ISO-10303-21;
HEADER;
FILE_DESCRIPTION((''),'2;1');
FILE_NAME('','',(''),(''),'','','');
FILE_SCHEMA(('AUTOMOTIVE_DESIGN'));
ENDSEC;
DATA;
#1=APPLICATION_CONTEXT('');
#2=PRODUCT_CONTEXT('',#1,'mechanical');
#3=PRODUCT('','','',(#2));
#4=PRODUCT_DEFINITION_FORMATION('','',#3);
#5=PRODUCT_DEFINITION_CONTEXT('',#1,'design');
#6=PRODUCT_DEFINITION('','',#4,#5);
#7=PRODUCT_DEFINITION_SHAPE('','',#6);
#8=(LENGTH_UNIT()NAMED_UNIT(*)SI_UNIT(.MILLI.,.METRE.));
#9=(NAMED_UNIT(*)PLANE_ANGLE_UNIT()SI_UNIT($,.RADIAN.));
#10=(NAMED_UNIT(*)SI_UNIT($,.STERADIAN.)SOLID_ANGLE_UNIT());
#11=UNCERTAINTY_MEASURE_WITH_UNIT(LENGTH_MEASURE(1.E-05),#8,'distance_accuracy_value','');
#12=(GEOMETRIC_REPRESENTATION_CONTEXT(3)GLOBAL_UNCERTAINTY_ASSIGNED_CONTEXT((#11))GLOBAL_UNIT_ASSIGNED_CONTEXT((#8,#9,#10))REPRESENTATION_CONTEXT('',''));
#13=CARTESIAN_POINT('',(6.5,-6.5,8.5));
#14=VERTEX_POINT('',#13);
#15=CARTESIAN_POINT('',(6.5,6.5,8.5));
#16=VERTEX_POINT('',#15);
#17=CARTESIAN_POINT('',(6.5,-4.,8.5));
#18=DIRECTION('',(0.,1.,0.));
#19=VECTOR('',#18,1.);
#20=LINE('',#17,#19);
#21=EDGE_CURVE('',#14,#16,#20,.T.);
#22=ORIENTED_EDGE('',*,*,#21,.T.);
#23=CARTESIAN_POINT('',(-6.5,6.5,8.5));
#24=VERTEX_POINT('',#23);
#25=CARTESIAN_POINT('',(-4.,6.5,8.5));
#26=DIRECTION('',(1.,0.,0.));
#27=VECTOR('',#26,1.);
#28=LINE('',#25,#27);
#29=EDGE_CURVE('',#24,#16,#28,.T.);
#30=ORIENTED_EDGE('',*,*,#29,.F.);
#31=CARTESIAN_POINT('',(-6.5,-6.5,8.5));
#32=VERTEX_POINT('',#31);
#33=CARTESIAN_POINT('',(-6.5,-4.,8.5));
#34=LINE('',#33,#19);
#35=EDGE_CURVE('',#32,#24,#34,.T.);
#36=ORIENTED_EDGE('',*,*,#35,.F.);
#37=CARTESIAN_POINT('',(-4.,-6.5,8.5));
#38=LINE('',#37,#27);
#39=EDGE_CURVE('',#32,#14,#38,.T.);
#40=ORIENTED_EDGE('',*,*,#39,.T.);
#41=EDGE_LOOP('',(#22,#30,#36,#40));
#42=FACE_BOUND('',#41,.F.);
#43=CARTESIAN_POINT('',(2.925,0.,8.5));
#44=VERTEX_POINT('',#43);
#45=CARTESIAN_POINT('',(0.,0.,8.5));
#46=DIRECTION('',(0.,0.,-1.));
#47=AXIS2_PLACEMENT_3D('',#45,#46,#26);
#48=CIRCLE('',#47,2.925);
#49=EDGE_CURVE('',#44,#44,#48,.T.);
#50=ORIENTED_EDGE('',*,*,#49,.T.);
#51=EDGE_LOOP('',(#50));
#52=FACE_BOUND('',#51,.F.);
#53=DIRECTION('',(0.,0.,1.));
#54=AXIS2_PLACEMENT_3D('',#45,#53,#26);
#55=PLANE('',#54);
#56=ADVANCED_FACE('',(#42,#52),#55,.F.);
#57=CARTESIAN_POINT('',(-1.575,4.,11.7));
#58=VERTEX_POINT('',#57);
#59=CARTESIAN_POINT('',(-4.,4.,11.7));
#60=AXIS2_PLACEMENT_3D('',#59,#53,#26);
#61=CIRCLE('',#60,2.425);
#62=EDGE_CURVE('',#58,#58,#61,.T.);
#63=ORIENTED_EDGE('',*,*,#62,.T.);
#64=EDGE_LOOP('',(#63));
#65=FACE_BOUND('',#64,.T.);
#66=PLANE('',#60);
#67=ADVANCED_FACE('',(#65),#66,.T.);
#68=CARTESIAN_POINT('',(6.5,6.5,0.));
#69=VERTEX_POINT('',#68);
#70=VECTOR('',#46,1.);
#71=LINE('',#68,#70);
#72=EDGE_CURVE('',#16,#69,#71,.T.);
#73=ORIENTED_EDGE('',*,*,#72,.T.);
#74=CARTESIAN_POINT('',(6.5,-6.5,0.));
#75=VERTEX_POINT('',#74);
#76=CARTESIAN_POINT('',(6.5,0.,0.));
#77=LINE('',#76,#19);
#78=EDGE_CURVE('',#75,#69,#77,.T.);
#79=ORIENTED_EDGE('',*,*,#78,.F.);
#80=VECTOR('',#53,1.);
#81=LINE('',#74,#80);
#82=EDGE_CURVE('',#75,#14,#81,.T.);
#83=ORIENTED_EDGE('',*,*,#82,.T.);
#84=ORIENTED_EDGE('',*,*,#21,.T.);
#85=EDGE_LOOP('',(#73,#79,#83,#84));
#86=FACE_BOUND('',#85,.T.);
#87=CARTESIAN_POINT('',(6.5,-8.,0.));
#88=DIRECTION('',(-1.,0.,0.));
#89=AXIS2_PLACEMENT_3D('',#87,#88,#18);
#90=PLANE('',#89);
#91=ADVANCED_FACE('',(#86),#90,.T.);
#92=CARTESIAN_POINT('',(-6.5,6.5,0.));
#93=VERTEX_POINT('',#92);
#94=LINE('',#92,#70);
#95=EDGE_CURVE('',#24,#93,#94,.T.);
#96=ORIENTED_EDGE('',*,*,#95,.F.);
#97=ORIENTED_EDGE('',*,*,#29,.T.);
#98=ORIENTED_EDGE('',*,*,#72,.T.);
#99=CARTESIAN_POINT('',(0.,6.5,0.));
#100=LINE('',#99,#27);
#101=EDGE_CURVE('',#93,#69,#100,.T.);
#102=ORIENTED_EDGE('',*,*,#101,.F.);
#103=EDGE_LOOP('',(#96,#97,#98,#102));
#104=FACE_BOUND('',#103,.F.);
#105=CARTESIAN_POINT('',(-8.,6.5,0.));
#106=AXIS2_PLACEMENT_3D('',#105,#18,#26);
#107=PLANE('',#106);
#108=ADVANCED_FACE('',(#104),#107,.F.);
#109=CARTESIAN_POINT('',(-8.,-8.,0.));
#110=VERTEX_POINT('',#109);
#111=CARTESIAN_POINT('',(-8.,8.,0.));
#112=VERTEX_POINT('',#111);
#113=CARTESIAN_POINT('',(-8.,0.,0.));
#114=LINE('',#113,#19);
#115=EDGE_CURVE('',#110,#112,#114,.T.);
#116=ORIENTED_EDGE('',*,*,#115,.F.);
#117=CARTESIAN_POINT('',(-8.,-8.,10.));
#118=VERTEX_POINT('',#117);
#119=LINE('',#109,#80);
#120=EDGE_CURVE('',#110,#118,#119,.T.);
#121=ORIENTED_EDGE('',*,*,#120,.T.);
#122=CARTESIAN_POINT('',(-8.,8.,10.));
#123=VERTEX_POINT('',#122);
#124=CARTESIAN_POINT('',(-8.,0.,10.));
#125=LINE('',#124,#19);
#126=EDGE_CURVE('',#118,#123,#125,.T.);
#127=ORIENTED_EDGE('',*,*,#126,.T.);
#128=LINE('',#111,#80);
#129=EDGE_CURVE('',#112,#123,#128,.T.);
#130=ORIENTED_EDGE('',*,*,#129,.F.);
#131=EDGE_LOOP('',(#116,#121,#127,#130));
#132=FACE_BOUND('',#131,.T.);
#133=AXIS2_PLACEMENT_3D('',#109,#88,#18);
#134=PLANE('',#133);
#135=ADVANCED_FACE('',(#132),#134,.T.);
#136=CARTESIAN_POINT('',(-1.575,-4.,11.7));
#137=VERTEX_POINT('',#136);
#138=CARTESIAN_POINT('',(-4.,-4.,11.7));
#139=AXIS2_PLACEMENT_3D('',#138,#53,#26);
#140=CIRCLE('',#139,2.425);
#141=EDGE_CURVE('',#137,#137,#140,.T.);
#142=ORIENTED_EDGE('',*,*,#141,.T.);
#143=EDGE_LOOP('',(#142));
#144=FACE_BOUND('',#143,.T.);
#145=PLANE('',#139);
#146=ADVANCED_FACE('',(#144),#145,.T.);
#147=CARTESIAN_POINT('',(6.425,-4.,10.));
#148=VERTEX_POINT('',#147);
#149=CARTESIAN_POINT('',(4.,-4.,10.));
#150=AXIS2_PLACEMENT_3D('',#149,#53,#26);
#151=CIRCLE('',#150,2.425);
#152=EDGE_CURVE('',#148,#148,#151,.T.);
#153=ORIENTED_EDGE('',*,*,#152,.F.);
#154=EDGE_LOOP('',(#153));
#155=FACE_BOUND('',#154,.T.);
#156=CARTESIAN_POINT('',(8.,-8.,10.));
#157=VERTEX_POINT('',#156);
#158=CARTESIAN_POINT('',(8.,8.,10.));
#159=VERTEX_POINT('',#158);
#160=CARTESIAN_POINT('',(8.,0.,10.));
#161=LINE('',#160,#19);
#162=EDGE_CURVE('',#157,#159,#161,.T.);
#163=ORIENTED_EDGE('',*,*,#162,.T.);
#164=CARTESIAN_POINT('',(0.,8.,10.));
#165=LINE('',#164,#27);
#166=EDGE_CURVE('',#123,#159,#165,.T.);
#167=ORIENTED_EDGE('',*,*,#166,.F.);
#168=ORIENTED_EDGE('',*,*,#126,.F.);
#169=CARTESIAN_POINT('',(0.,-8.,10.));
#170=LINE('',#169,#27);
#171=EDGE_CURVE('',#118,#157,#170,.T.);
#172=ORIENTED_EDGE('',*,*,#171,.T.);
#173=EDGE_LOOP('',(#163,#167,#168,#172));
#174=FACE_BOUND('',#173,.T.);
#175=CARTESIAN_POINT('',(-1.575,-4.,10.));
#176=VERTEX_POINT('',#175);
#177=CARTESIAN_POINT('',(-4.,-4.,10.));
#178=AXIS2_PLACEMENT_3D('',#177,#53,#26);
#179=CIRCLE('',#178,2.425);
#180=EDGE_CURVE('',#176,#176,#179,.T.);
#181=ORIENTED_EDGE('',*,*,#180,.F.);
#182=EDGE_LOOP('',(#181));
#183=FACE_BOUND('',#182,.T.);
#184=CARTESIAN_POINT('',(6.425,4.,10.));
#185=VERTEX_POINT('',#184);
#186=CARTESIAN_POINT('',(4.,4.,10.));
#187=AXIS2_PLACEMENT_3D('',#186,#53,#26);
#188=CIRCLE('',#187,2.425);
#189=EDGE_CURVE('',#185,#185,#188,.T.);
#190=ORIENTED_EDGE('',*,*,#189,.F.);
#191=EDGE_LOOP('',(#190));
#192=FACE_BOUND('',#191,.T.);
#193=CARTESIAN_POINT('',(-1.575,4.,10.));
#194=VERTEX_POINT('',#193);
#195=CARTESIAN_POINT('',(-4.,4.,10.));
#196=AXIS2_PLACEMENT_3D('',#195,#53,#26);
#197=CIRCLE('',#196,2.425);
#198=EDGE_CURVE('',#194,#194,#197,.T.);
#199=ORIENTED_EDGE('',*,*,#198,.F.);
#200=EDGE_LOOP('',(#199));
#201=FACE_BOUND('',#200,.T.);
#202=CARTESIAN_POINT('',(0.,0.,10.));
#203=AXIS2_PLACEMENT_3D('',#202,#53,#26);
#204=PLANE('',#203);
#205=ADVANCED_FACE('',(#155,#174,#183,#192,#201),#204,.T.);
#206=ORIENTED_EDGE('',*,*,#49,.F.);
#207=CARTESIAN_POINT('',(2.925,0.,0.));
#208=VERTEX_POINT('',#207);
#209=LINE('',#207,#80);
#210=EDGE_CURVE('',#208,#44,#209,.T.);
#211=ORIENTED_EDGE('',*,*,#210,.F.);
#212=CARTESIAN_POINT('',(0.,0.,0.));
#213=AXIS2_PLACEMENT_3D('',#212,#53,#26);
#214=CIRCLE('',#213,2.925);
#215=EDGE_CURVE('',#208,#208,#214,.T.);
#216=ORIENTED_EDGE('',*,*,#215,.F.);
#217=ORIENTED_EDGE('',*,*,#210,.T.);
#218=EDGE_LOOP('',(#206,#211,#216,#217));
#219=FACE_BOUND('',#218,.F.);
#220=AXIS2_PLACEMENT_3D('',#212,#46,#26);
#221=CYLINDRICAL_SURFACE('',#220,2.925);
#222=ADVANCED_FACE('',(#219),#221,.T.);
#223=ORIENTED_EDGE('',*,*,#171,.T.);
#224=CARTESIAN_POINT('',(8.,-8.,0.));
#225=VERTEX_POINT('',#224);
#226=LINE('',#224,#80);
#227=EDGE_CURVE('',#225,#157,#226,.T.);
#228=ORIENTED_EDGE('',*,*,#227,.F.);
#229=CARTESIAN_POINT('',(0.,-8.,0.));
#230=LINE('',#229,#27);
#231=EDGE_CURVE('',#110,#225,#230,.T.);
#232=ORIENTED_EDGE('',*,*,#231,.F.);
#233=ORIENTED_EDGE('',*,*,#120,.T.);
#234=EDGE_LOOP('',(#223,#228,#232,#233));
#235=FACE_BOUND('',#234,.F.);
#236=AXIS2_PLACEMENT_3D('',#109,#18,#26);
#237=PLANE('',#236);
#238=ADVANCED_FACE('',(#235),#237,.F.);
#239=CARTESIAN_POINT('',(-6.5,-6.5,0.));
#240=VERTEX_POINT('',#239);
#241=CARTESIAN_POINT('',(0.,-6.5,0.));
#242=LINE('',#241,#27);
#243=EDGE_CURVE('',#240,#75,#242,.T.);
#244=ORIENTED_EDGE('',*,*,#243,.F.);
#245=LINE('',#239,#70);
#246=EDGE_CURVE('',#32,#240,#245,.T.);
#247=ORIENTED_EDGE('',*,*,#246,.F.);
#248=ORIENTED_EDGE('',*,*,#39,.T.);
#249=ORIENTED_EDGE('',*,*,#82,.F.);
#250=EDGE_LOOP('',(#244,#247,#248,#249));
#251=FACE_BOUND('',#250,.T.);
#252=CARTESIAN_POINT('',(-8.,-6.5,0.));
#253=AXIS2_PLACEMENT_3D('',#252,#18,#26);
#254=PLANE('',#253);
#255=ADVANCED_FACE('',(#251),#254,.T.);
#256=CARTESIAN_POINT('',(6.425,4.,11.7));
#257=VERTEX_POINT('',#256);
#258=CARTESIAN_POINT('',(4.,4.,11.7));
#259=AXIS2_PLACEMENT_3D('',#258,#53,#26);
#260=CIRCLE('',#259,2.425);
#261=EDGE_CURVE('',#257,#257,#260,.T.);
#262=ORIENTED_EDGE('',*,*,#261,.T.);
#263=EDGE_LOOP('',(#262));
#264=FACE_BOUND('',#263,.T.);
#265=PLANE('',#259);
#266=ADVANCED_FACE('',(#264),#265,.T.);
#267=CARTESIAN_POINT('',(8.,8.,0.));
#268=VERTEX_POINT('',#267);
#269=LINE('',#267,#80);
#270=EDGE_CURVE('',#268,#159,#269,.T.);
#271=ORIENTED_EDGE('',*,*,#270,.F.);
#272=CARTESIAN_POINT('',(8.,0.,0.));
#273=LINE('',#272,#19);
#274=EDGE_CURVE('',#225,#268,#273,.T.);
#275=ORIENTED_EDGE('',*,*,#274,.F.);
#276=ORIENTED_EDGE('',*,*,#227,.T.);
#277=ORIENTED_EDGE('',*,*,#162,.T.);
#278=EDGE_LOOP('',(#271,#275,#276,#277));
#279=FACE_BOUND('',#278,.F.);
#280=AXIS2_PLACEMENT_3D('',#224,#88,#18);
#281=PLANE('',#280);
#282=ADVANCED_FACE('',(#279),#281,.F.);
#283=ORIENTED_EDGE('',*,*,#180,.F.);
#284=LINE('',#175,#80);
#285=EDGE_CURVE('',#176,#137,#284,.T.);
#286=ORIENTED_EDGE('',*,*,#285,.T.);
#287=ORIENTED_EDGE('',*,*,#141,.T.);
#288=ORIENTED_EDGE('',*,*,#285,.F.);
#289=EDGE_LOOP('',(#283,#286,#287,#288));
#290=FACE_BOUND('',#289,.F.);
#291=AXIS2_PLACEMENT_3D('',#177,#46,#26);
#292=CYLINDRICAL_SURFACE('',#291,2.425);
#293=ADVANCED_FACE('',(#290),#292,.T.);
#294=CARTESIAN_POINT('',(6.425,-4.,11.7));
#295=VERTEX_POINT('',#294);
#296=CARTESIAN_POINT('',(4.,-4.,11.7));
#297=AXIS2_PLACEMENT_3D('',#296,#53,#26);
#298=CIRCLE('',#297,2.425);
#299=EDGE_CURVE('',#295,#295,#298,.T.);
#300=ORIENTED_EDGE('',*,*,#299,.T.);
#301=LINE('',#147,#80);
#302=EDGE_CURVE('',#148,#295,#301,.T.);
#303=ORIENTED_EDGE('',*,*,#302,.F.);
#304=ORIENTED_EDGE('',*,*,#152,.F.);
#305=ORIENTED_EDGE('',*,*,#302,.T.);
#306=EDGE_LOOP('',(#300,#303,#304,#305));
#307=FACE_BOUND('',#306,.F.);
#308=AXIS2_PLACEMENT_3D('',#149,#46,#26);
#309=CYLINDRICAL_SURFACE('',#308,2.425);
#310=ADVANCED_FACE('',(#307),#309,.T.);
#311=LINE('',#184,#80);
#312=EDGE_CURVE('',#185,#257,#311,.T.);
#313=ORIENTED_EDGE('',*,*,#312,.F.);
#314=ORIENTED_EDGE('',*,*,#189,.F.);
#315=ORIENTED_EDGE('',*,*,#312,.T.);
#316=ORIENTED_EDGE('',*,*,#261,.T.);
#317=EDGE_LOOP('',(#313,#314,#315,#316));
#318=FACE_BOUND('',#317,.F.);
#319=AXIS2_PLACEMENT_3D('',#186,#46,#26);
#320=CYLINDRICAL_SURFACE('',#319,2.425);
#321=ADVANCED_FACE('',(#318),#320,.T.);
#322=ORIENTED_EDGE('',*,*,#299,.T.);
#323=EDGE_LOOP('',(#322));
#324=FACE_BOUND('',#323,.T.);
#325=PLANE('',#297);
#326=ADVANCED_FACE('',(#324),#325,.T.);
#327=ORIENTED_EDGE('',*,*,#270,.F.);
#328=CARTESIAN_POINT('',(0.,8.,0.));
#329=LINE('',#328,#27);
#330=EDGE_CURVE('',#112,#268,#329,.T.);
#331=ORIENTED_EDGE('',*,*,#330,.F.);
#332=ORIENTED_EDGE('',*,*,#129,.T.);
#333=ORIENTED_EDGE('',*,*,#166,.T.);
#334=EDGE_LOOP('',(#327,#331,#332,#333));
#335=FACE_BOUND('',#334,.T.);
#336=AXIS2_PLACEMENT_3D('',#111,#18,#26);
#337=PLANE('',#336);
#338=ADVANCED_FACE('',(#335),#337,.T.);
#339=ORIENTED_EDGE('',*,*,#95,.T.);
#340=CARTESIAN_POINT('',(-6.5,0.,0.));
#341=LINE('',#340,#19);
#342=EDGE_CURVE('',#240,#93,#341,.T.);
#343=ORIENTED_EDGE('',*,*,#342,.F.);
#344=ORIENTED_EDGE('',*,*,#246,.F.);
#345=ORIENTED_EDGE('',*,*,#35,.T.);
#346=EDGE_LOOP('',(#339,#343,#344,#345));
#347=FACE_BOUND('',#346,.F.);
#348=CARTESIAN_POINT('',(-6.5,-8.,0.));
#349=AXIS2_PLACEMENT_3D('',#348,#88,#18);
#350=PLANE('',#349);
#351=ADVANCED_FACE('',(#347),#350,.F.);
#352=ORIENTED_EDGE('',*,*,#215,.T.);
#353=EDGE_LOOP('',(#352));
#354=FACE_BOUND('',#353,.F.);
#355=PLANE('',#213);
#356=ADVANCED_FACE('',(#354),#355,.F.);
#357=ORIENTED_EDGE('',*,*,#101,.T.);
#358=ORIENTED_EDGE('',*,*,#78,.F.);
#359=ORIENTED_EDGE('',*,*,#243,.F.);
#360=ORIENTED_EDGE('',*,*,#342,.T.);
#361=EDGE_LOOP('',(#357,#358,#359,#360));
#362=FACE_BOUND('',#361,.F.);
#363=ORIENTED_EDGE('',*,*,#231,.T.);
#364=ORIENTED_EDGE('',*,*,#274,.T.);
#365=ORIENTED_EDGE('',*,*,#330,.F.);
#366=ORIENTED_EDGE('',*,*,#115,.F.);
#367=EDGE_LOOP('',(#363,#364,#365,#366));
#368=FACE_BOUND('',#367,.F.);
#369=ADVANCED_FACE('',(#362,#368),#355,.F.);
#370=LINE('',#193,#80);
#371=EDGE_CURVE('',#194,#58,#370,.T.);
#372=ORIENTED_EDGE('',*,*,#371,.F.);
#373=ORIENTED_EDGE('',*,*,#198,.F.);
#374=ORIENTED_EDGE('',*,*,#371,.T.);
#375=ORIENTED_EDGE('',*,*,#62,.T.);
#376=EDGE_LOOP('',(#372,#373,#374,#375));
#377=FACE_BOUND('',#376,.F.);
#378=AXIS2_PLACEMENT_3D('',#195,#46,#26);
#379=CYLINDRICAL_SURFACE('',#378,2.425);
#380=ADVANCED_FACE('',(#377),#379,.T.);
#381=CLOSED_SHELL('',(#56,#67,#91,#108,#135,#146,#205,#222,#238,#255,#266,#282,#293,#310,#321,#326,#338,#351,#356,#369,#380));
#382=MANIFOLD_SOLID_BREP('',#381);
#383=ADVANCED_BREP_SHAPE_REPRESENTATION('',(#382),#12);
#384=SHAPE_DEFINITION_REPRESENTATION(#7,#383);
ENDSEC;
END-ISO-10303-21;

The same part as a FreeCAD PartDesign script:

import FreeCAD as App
import Part
import Sketcher
from FreeCAD import Vector


def faces_at(feature, points):
    """Names of the faces that lie closest to the given points."""
    faces = feature.Shape.Faces
    near = lambda p: min(range(len(faces)), key=lambda i: faces[i].distToShape(Part.Vertex(*p))[0])
    return sorted({f"Face{near(p) + 1}" for p in points})

doc = App.newDocument("Part")
body = doc.addObject("PartDesign::Body", "Body")

# Sketch on XY plane
sketch1 = body.newObject("Sketcher::SketchObject", "Sketch")
sketch1.AttachmentSupport = (doc.getObject("XY_Plane"), [""])
sketch1.MapMode = "FlatFace"
sketch1.addGeometry([
    Part.LineSegment(Vector(-8, 8, 0), Vector(-8, -8, 0)),
    Part.LineSegment(Vector(-8, -8, 0), Vector(8, -8, 0)),
    Part.LineSegment(Vector(8, -8, 0), Vector(8, 8, 0)),
    Part.LineSegment(Vector(8, 8, 0), Vector(-8, 8, 0)),
], False)
sketch1.addConstraint([
    Sketcher.Constraint("Coincident", 0, 2, 1, 1),
    Sketcher.Constraint("Coincident", 1, 2, 2, 1),
    Sketcher.Constraint("Coincident", 2, 2, 3, 1),
    Sketcher.Constraint("Coincident", 3, 2, 0, 1),
    Sketcher.Constraint("Vertical", 0),
    Sketcher.Constraint("Horizontal", 1),
    Sketcher.Constraint("Vertical", 2),
    Sketcher.Constraint("Horizontal", 3),
    Sketcher.Constraint("Symmetric", 0, 2, 2, 2, -1, 1),
    Sketcher.Constraint("Equal", 3, 0),
    Sketcher.Constraint("DistanceX", 1, 1, 1, 2, 16.0),
])
pad1 = body.newObject("PartDesign::Pad", "Pad")
pad1.Profile = sketch1
pad1.Length = 10
doc.recompute()

thickness = body.newObject("PartDesign::Thickness", "Thickness")
thickness.Base = (pad1, faces_at(pad1, [(0, 0, 0)]))
thickness.Value = 1.5
thickness.Reversed = True
thickness.Join = "Arc"

# Sketch on XY plane
sketch2 = body.newObject("Sketcher::SketchObject", "Sketch001")
sketch2.AttachmentSupport = (doc.getObject("XY_Plane"), [""])
sketch2.MapMode = "FlatFace"
sketch2.AttachmentOffset = App.Placement(Vector(0, 0, 10), App.Rotation())
sketch2.addGeometry([
    Part.Circle(Vector(-4, -4, 0), Vector(0, 0, 1), 2.4),
    Part.Circle(Vector(-4, 4, 0), Vector(0, 0, 1), 2.4),
    Part.Circle(Vector(4, -4, 0), Vector(0, 0, 1), 2.4),
    Part.Circle(Vector(4, 4, 0), Vector(0, 0, 1), 2.4),
], False)
sketch2.addConstraint([
    Sketcher.Constraint("Equal", 0, 1),
    Sketcher.Constraint("Equal", 1, 2),
    Sketcher.Constraint("Equal", 2, 3),
    Sketcher.Constraint("Symmetric", 1, 3, 2, 3, -1, 1),
    Sketcher.Constraint("Symmetric", 0, 3, 3, 3, -1, 1),
    Sketcher.Constraint("Symmetric", 0, 3, 2, 3, -2),
    Sketcher.Constraint("Diameter", 0, 4.85),
    Sketcher.Constraint("DistanceX", 0, 3, -1, 1, 4.0),
    Sketcher.Constraint("DistanceY", 0, 3, -1, 1, 4.0),
])
pad2 = body.newObject("PartDesign::Pad", "Pad001")
pad2.Profile = sketch2
pad2.Length = 1.7

# Sketch on XY plane
sketch3 = body.newObject("Sketcher::SketchObject", "Sketch002")
sketch3.AttachmentSupport = (doc.getObject("XY_Plane"), [""])
sketch3.MapMode = "FlatFace"
sketch3.addGeometry(Part.Circle(Vector(0, 0, 0), Vector(0, 0, 1), 2.9), False)
sketch3.addConstraint([
    Sketcher.Constraint("Coincident", 0, 3, -1, 1),
    Sketcher.Constraint("Diameter", 0, 5.85),
])
pad3 = body.newObject("PartDesign::Pad", "Pad002")
pad3.Profile = sketch3
pad3.Length = 10

doc.recompute()
